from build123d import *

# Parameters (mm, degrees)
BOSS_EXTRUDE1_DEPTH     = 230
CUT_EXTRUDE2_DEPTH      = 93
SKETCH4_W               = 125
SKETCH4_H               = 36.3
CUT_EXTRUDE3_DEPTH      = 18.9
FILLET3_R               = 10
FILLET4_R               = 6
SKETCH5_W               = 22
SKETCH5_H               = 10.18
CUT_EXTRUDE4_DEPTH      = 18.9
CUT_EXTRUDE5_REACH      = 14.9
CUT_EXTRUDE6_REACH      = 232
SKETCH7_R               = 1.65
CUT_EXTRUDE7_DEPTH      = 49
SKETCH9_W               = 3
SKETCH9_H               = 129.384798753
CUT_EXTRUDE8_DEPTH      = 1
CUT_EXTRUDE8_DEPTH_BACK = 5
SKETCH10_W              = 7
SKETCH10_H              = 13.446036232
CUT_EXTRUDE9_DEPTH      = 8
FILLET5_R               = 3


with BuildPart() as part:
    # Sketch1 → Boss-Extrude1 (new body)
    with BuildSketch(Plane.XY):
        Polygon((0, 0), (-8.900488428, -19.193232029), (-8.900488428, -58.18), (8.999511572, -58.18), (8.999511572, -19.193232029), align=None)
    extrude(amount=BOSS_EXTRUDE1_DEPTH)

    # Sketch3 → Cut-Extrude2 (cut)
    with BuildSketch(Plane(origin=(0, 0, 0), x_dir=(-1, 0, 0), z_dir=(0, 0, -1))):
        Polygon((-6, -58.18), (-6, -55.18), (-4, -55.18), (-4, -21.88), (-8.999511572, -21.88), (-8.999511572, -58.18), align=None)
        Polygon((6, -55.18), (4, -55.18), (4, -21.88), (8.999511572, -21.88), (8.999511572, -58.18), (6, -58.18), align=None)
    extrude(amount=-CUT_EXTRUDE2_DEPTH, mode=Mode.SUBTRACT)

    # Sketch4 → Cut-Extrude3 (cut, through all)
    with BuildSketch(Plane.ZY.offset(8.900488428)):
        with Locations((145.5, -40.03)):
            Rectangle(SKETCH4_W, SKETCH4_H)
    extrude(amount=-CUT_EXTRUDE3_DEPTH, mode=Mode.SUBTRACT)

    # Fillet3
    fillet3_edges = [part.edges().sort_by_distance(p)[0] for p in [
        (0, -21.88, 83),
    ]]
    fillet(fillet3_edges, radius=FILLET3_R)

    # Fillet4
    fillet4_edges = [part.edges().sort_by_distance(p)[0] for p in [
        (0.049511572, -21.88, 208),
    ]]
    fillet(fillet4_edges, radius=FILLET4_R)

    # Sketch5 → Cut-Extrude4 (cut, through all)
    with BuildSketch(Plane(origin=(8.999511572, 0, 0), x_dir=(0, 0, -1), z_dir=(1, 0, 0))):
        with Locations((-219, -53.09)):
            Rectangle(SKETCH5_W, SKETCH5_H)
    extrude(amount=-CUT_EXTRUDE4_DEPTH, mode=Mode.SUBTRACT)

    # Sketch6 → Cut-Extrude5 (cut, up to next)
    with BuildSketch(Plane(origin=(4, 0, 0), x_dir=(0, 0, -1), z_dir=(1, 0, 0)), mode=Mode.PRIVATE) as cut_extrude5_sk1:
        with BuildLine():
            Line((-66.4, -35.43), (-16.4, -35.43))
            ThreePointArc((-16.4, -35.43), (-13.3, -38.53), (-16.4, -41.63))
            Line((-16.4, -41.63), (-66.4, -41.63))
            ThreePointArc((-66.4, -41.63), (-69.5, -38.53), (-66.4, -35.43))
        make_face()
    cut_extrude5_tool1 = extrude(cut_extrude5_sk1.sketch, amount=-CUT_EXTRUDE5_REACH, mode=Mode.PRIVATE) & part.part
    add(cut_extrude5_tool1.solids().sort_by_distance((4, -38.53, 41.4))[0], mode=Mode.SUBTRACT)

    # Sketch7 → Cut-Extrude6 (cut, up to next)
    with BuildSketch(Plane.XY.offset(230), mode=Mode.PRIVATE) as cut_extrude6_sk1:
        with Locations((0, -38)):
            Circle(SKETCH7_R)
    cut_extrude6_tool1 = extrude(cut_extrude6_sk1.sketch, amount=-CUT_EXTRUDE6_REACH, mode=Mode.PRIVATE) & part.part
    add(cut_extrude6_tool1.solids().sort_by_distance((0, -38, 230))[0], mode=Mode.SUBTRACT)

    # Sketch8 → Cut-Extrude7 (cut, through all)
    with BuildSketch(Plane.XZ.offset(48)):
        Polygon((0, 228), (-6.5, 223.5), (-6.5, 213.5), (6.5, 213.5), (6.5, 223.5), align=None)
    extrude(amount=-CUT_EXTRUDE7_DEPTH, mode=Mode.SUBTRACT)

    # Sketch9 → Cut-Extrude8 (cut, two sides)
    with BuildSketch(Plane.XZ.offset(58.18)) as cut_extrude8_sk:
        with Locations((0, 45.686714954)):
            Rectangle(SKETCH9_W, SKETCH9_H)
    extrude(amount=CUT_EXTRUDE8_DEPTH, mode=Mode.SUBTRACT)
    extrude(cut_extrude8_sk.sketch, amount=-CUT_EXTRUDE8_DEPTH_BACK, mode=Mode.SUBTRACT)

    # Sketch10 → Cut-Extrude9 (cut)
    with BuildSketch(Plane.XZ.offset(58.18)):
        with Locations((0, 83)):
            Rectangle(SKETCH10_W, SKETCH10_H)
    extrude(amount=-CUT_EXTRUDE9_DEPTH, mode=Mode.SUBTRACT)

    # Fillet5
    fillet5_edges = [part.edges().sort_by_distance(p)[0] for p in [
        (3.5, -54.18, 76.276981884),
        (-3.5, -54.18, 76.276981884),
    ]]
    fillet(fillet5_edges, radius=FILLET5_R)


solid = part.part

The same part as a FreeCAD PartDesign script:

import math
import FreeCAD as App
import Part
import Sketcher

V = App.Vector
Q = App.Units.Quantity


def edges_at(feature, points):
    """Names of the edges that pass closest to the given points."""
    edges = feature.Shape.Edges
    near = lambda p: min(range(len(edges)), key=lambda i: edges[i].distToShape(Part.Vertex(*p))[0])
    return sorted({f"Edge{near(p) + 1}" for p in points})


def add_polygon(sketch, points):
    """Adds a closed chain of lines whose ends are joined by coincident constraints."""
    first, n = sketch.GeometryCount, len(points)
    for a, b in zip(points, points[1:] + points[:1]):
        sketch.addGeometry(Part.LineSegment(App.Vector(*a, 0), App.Vector(*b, 0)), False)
    for i in range(n):
        sketch.addConstraint(Sketcher.Constraint("Coincident", first + i, 2, first + (i + 1) % n, 1))

doc = App.newDocument("Part")
params = doc.addObject("Spreadsheet::Sheet", "Params")
for row, (alias, value) in enumerate([
    ("sketch1_width", "17.9 mm"),
    ("pad1_length", "230 mm"),
    ("sketch2_width", "2 mm"),
    ("sketch2_height", "3 mm"),
    ("sketch2_height2", "33.3 mm"),
    ("pocket1_length", "93 mm"),
    ("sketch3_height", "125 mm"),
    ("sketch3_width", "36.3 mm"),
    ("fillet_radius", "10 mm"),
    ("fillet2_radius", "6 mm"),
    ("sketch4_height", "22 mm"),
    ("sketch4_width", "10.18 mm"),
    ("sketch5_radius", "3.1 mm"),
    ("sketch5_height", "50 mm"),
    ("sketch6_diameter", "3.3 mm"),
    ("sketch7_width", "13 mm"),
    ("sketch7_height", "10 mm"),
    ("sketch8_width", "3 mm"),
    ("pocket7_length", "1 mm"),
    ("pocket7_length2", "5 mm"),
    ("sketch9_width", "7 mm"),
    ("pocket8_length", "8 mm"),
    ("fillet3_radius", "3 mm"),
], start=1):
    params.set(f"A{row}", alias)
    params.set(f"B{row}", "=" + value)
    params.setAlias(f"B{row}", alias)

body = doc.addObject("PartDesign::Body", "Body")

# Sketch on XY plane
sketch1 = body.newObject("Sketcher::SketchObject", "Sketch")
sketch1.AttachmentSupport = (doc.getObject("XY_Plane"), [""])
sketch1.MapMode = "FlatFace"
add_polygon(sketch1, [(0, 0), (-9, -19), (-9, -58), (9, -58), (9, -19)])  # lines 0-4
sketch1.addConstraint([
    Sketcher.Constraint("Vertical", 1),
    Sketcher.Constraint("Horizontal", 2),
    Sketcher.Constraint("Vertical", 3),
    Sketcher.Constraint("Coincident", 4, 2, -1, 1),
    Sketcher.Constraint("Horizontal", 0, 2, 3, 2),
    Sketcher.Constraint("DistanceX", 2, 1, 2, 2, Q("17.9 mm")),
    Sketcher.Constraint("DistanceY", 1, 2, -1, 1, Q("58.18 mm")),
    Sketcher.Constraint("Distance", 4, Q("21.198381 mm")),
    Sketcher.Constraint("DistanceY", 1, 2, 1, 1, Q("38.986768 mm")),
])
sketch1.setExpression("Constraints[10]", "Params.sketch1_width")
pad1 = body.newObject("PartDesign::Pad", "Pad")
pad1.Profile = sketch1
pad1.setExpression("Length", "Params.pad1_length")

# Sketch on XY plane
sketch2 = body.newObject("Sketcher::SketchObject", "Sketch001")
sketch2.AttachmentSupport = (doc.getObject("XY_Plane"), [""])
sketch2.MapMode = "FlatFace"
add_polygon(sketch2, [(6, -58.2), (6, -55.2), (4, -55.2), (4, -21.9), (9, -21.9), (9, -58.2)])  # lines 0-5
add_polygon(sketch2, [(-4, -55.2), (-6, -55.2), (-6, -58.2), (-9, -58.2), (-9, -21.9), (-4, -21.9)])  # lines 6-11
sketch2.addConstraint([
    Sketcher.Constraint("Vertical", 0),
    Sketcher.Constraint("Horizontal", 1),
    Sketcher.Constraint("Vertical", 2),
    Sketcher.Constraint("Horizontal", 3),
    Sketcher.Constraint("Vertical", 4),
    Sketcher.Constraint("Horizontal", 5),
    Sketcher.Constraint("Horizontal", 6),
    Sketcher.Constraint("Vertical", 7),
    Sketcher.Constraint("Horizontal", 8),
    Sketcher.Constraint("Vertical", 9),
    Sketcher.Constraint("Horizontal", 10),
    Sketcher.Constraint("Vertical", 11),
    Sketcher.Constraint("Symmetric", 0, 2, 6, 2, -2),
    Sketcher.Constraint("Symmetric", 4, 2, 8, 2, -2),
    Sketcher.Constraint("Symmetric", 2, 2, 10, 2, -2),
    Sketcher.Constraint("DistanceX", 1, 2, 1, 1, Q("2 mm")),
    Sketcher.Constraint("DistanceY", 0, 1, 0, 2, Q("3 mm")),
    Sketcher.Constraint("DistanceY", 2, 1, 2, 2, Q("33.3 mm")),
    Sketcher.Constraint("DistanceX", -1, 1, 0, 2, Q("6 mm")),
    Sketcher.Constraint("DistanceY", 0, 2, -1, 1, Q("55.18 mm")),
    Sketcher.Constraint("DistanceX", 3, 1, 3, 2, Q("4.999512 mm")),
])
sketch2.setExpression("Constraints[27]", "Params.sketch2_width")
sketch2.setExpression("Constraints[28]", "Params.sketch2_height")
sketch2.setExpression("Constraints[29]", "Params.sketch2_height2")
pocket1 = body.newObject("PartDesign::Pocket", "Pocket")
pocket1.Profile = sketch2
pocket1.setExpression("Length", "Params.pocket1_length")
pocket1.Reversed = True

# Sketch on YZ plane
sketch3 = body.newObject("Sketcher::SketchObject", "Sketch002")
sketch3.AttachmentSupport = (doc.getObject("YZ_Plane"), [""])
sketch3.MapMode = "FlatFace"
sketch3.AttachmentOffset = App.Placement(V(0, 0, -8.900488), App.Rotation())
add_polygon(sketch3, [(-22, 83), (-58, 83), (-58, 208), (-22, 208)])  # lines 0-3
sketch3.addConstraint([
    Sketcher.Constraint("Horizontal", 0),
    Sketcher.Constraint("Vertical", 1),
    Sketcher.Constraint("Horizontal", 2),
    Sketcher.Constraint("Vertical", 3),
    Sketcher.Constraint("DistanceY", 1, 1, 1, 2, Q("125 mm")),
    Sketcher.Constraint("DistanceX", 0, 2, 0, 1, Q("36.3 mm")),
    Sketcher.Constraint("DistanceY", -1, 1, 0, 2, Q("83 mm")),
    Sketcher.Constraint("DistanceX", 0, 2, -1, 1, Q("58.18 mm")),
])
sketch3.setExpression("Constraints[8]", "Params.sketch3_height")
sketch3.setExpression("Constraints[9]", "Params.sketch3_width")
pocket2 = body.newObject("PartDesign::Pocket", "Pocket001")
pocket2.Profile = sketch3
pocket2.Type = "ThroughAll"
pocket2.Reversed = True
doc.recompute()

fillet = body.newObject("PartDesign::Fillet", "Fillet")
fillet.Base = (pocket2, edges_at(pocket2, [(0, -21.88, 83)]))
fillet.setExpression("Radius", "Params.fillet_radius")
doc.recompute()

fillet2 = body.newObject("PartDesign::Fillet", "Fillet001")
fillet2.Base = (fillet, edges_at(fillet, [(0.05, -21.88, 208)]))
fillet2.setExpression("Radius", "Params.fillet2_radius")

# Sketch on YZ plane
sketch4 = body.newObject("Sketcher::SketchObject", "Sketch003")
sketch4.AttachmentSupport = (doc.getObject("YZ_Plane"), [""])
sketch4.MapMode = "FlatFace"
sketch4.AttachmentOffset = App.Placement(V(0, 0, 8.999512), App.Rotation())
add_polygon(sketch4, [(-48, 230), (-58, 230), (-58, 208), (-48, 208)])  # lines 0-3
sketch4.addConstraint([
    Sketcher.Constraint("Horizontal", 0),
    Sketcher.Constraint("Vertical", 1),
    Sketcher.Constraint("Horizontal", 2),
    Sketcher.Constraint("Vertical", 3),
    Sketcher.Constraint("DistanceY", 1, 2, 1, 1, Q("22 mm")),
    Sketcher.Constraint("DistanceY", -1, 1, 0, 2, Q("230 mm")),
    Sketcher.Constraint("DistanceX", 2, 2, -1, 1, Q("48 mm")),
    Sketcher.Constraint("DistanceX", 0, 2, 0, 1, Q("10.18 mm")),
])
sketch4.setExpression("Constraints[8]", "Params.sketch4_height")
sketch4.setExpression("Constraints[11]", "Params.sketch4_width")
pocket3 = body.newObject("PartDesign::Pocket", "Pocket002")
pocket3.Profile = sketch4
pocket3.Type = "ThroughAll"

# Sketch on YZ plane
sketch5 = body.newObject("Sketcher::SketchObject", "Sketch004")
sketch5.AttachmentSupport = (doc.getObject("YZ_Plane"), [""])
sketch5.MapMode = "FlatFace"
sketch5.AttachmentOffset = App.Placement(V(0, 0, 4), App.Rotation())
sketch5.addGeometry([
    Part.LineSegment(V(-35.4, 16.4, 0), V(-35.4, 66.4, 0)),
    Part.ArcOfCircle(Part.Circle(V(-38.5, 66.4, 0), V(0, 0, 1), 3.1), math.radians(0), math.radians(180)),
    Part.LineSegment(V(-41.6, 66.4, 0), V(-41.6, 16.4, 0)),
    Part.ArcOfCircle(Part.Circle(V(-38.5, 16.4, 0), V(0, 0, 1), 3.1), math.radians(180), math.radians(360)),
], False)
sketch5.addConstraint([
    Sketcher.Constraint("Tangent", 0, 2, 1, 1),
    Sketcher.Constraint("Tangent", 1, 2, 2, 1),
    Sketcher.Constraint("Tangent", 2, 2, 3, 1),
    Sketcher.Constraint("Tangent", 3, 2, 0, 1),
    Sketcher.Constraint("Vertical", 0),
    Sketcher.Constraint("Vertical", 2),
    Sketcher.Constraint("Radius", 1, Q("3.1 mm")),
    Sketcher.Constraint("DistanceY", 0, 1, 0, 2, Q("50 mm")),
    Sketcher.Constraint("DistanceY", -1, 1, 1, 3, Q("66.4 mm")),
    Sketcher.Constraint("DistanceX", 1, 3, -1, 1, Q("38.53 mm")),
])
sketch5.setExpression("Constraints[6]", "Params.sketch5_radius")
sketch5.setExpression("Constraints[7]", "Params.sketch5_height")
pocket4 = body.newObject("PartDesign::Pocket", "Pocket003")
pocket4.Profile = sketch5
pocket4.Type = "UpToFirst"

# Sketch on XY plane
sketch6 = body.newObject("Sketcher::SketchObject", "Sketch005")
sketch6.AttachmentSupport = (doc.getObject("XY_Plane"), [""])
sketch6.MapMode = "FlatFace"
sketch6.AttachmentOffset = App.Placement(V(0, 0, 230), App.Rotation())
sketch6.addGeometry(Part.Circle(V(0, -38, 0), V(0, 0, 1), 1.6), False)
sketch6.addConstraint([
    Sketcher.Constraint("PointOnObject", 0, 3, -2),
    Sketcher.Constraint("Diameter", 0, Q("3.3 mm")),
    Sketcher.Constraint("DistanceY", 0, 3, -1, 1, Q("38 mm")),
])
sketch6.setExpression("Constraints[1]", "Params.sketch6_diameter")
pocket5 = body.newObject("PartDesign::Pocket", "Pocket004")
pocket5.Profile = sketch6
pocket5.Type = "UpToFirst"

# Sketch on XZ plane
sketch7 = body.newObject("Sketcher::SketchObject", "Sketch006")
sketch7.AttachmentSupport = (doc.getObject("XZ_Plane"), [""])
sketch7.MapMode = "FlatFace"
sketch7.AttachmentOffset = App.Placement(V(0, 0, 48), App.Rotation())
add_polygon(sketch7, [(0, 228), (-6, 224), (-6, 214), (6, 214), (6, 224)])  # lines 0-4
sketch7.addConstraint([
    Sketcher.Constraint("Vertical", 1),
    Sketcher.Constraint("Horizontal", 2),
    Sketcher.Constraint("Vertical", 3),
    Sketcher.Constraint("Symmetric", 0, 2, 3, 2, -2),
    Sketcher.Constraint("PointOnObject", 4, 2, -2),
    Sketcher.Constraint("DistanceX", 2, 1, 2, 2, Q("13 mm")),
    Sketcher.Constraint("DistanceY", 1, 2, 1, 1, Q("10 mm")),
    Sketcher.Constraint("DistanceY", -1, 1, 4, 2, Q("228 mm")),
    Sketcher.Constraint("DistanceY", -1, 1, 0, 2, Q("223.5 mm")),
])
sketch7.setExpression("Constraints[10]", "Params.sketch7_width")
sketch7.setExpression("Constraints[11]", "Params.sketch7_height")
pocket6 = body.newObject("PartDesign::Pocket", "Pocket005")
pocket6.Profile = sketch7
pocket6.Type = "ThroughAll"

# Sketch on XZ plane
sketch8 = body.newObject("Sketcher::SketchObject", "Sketch007")
sketch8.AttachmentSupport = (doc.getObject("XZ_Plane"), [""])
sketch8.MapMode = "FlatFace"
sketch8.AttachmentOffset = App.Placement(V(0, 0, 58.18), App.Rotation())
add_polygon(sketch8, [(-1.5, 110.4), (-1.5, -19), (1.5, -19), (1.5, 110.4)])  # lines 0-3
sketch8.addConstraint([
    Sketcher.Constraint("Vertical", 0),
    Sketcher.Constraint("Horizontal", 1),
    Sketcher.Constraint("Vertical", 2),
    Sketcher.Constraint("Horizontal", 3),
    Sketcher.Constraint("DistanceX", 1, 1, 1, 2, Q("3 mm")),
    Sketcher.Constraint("DistanceX", 0, 2, -1, 1, Q("1.5 mm")),
    Sketcher.Constraint("DistanceY", 0, 2, 0, 1, Q("129.384799 mm")),
    Sketcher.Constraint("DistanceY", 0, 2, -1, 1, Q("19.005684 mm")),
])
sketch8.setExpression("Constraints[8]", "Params.sketch8_width")
pocket7 = body.newObject("PartDesign::Pocket", "Pocket006")
pocket7.Profile = sketch8
pocket7.Type = "TwoLengths"
pocket7.setExpression("Length", "Params.pocket7_length")
pocket7.setExpression("Length2", "Params.pocket7_length2")
pocket7.Reversed = True

# Sketch on XZ plane
sketch9 = body.newObject("Sketcher::SketchObject", "Sketch008")
sketch9.AttachmentSupport = (doc.getObject("XZ_Plane"), [""])
sketch9.MapMode = "FlatFace"
sketch9.AttachmentOffset = App.Placement(V(0, 0, 58.18), App.Rotation())
add_polygon(sketch9, [(-4, 90), (-4, 76), (4, 76), (4, 90)])  # lines 0-3
sketch9.addConstraint([
    Sketcher.Constraint("Vertical", 0),
    Sketcher.Constraint("Horizontal", 1),
    Sketcher.Constraint("Vertical", 2),
    Sketcher.Constraint("Horizontal", 3),
    Sketcher.Constraint("DistanceX", 1, 1, 1, 2, Q("7 mm")),
    Sketcher.Constraint("DistanceX", 0, 2, -1, 1, Q("3.5 mm")),
    Sketcher.Constraint("DistanceY", 0, 2, 0, 1, Q("13.446036 mm")),
    Sketcher.Constraint("DistanceY", -1, 1, 0, 2, Q("76.276982 mm")),
])
sketch9.setExpression("Constraints[8]", "Params.sketch9_width")
pocket8 = body.newObject("PartDesign::Pocket", "Pocket007")
pocket8.Profile = sketch9
pocket8.setExpression("Length", "Params.pocket8_length")
doc.recompute()

fillet3 = body.newObject("PartDesign::Fillet", "Fillet002")
fillet3.Base = (pocket8, edges_at(pocket8, [(3.5, -54.18, 76.277), (-3.5, -54.18, 76.277)]))
fillet3.setExpression("Radius", "Params.fillet3_radius")

doc.recompute()
